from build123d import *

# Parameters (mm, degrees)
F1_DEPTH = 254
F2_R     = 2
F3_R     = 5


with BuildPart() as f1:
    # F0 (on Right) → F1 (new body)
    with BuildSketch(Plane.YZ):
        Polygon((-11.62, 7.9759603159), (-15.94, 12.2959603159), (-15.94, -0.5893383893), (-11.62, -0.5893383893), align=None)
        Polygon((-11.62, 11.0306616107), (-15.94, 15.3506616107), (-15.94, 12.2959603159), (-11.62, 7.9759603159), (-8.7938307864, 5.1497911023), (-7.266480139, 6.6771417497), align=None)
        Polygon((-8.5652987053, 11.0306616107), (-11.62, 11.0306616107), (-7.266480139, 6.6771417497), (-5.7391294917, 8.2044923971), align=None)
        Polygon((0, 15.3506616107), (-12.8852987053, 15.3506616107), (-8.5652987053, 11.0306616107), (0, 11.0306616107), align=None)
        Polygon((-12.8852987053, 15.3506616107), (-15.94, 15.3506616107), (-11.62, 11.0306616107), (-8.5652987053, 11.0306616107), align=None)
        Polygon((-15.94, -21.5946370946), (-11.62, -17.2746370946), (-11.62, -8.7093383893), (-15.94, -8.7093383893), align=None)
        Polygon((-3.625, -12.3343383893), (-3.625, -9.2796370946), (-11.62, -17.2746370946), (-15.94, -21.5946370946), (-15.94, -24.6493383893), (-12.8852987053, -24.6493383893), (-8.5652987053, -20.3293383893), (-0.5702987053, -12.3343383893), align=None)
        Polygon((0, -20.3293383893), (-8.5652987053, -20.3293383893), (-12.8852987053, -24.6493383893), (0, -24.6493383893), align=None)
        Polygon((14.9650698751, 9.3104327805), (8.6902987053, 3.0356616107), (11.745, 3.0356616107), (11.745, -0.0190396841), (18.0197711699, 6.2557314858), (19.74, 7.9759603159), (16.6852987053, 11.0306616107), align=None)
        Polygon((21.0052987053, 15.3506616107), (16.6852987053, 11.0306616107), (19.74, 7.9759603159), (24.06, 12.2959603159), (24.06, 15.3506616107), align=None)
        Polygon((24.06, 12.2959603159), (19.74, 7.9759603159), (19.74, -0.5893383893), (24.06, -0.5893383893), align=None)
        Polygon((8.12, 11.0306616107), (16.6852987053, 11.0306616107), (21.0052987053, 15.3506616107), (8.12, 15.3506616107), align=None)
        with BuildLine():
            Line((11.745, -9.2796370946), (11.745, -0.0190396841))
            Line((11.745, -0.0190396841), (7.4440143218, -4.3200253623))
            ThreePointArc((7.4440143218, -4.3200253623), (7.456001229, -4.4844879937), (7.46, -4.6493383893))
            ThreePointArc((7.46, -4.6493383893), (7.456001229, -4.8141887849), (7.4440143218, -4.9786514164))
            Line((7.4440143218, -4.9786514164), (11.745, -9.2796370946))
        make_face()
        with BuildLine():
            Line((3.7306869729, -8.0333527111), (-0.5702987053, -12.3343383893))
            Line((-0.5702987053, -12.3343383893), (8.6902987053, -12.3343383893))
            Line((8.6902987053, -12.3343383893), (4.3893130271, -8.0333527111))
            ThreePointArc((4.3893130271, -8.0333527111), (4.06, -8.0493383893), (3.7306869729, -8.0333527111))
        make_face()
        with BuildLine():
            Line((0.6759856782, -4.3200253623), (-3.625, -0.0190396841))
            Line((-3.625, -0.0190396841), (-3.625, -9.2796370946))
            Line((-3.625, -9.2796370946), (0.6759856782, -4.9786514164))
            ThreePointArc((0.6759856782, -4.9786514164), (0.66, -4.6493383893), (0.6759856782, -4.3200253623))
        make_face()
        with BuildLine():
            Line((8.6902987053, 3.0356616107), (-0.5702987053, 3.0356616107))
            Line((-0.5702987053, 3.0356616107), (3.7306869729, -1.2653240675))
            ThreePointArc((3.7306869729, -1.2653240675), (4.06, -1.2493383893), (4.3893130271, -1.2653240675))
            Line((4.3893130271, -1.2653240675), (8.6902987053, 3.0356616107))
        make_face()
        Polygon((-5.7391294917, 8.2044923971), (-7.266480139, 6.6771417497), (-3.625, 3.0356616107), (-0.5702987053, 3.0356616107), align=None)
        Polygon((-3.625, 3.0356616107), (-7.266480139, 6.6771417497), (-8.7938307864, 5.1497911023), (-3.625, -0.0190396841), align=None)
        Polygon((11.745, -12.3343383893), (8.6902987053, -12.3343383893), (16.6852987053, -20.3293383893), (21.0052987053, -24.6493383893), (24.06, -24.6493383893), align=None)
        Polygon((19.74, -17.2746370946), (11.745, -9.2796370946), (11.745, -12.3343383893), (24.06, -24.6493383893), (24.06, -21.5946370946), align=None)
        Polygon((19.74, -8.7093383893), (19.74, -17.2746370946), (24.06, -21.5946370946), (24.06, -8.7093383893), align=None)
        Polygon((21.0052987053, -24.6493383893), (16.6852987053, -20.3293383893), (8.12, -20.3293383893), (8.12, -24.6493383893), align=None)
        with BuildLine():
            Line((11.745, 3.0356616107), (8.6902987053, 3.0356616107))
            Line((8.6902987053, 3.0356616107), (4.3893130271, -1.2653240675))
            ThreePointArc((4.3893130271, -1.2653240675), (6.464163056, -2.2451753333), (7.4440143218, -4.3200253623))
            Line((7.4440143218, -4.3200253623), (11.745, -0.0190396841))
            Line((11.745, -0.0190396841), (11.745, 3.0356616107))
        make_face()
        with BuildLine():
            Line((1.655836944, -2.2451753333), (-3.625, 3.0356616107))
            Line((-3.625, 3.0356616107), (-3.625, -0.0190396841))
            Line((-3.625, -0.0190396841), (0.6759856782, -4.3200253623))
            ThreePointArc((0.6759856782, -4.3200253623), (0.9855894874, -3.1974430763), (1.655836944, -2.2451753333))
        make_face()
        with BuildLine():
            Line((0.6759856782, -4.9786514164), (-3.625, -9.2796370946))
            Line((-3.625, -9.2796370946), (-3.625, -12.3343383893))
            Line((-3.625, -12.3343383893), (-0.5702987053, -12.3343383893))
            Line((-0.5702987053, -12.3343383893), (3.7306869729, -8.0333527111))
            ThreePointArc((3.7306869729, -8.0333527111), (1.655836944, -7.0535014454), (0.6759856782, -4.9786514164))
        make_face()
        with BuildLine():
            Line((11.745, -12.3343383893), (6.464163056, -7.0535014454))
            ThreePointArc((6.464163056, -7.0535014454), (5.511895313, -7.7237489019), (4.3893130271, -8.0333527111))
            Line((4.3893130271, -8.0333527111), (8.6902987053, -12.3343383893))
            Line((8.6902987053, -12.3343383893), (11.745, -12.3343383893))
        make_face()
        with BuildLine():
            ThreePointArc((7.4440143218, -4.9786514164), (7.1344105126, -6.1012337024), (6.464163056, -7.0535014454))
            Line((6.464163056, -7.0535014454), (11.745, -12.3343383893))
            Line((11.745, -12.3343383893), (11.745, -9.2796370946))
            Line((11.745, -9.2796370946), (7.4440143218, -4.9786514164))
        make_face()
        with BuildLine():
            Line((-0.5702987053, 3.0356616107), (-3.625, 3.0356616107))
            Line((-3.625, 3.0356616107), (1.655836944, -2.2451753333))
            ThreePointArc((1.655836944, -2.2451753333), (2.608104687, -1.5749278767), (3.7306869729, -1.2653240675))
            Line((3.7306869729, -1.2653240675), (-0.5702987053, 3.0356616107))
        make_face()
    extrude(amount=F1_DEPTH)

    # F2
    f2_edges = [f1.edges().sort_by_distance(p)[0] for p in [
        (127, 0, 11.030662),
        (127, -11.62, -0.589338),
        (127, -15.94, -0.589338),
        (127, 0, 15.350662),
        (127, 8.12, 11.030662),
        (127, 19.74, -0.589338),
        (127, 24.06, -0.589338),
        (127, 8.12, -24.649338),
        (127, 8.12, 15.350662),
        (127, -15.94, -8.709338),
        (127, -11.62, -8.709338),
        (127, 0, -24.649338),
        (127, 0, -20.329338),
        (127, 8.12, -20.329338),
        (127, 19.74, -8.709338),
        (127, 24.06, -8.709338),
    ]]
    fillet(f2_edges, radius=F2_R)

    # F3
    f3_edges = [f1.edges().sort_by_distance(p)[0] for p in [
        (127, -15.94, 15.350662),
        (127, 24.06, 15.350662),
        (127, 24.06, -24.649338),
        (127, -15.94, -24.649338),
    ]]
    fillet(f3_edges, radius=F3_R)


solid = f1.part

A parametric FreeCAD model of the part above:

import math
import FreeCAD as App
import Part
import Sketcher

V = App.Vector
Q = App.Units.Quantity


def edges_at(feature, points):
    """Names of the edges that pass closest to the given points."""
    edges = feature.Shape.Edges
    near = lambda p: min(range(len(edges)), key=lambda i: edges[i].distToShape(Part.Vertex(*p))[0])
    return sorted({f"Edge{near(p) + 1}" for p in points})

doc = App.newDocument("Part")
body = doc.addObject("PartDesign::Body", "Body")

sketch1 = body.newObject("Sketcher::SketchObject", "Sketch")
sketch1.AttachmentSupport = (doc.getObject("YZ_Plane"), [""])
sketch1.MapMode = "FlatFace"
sketch1.addGeometry(Part.LineSegment(V(8.69, 3.04, 0), V(-0.57, 3.04, 0)), False)
sketch1.addGeometry(Part.LineSegment(V(-0.57, 3.04, 0), V(-8.57, 11.03, 0)), False)
sketch1.addGeometry(Part.LineSegment(V(-8.57, 11.03, 0), V(0, 11.03, 0)), False)
sketch1.addGeometry(Part.LineSegment(V(0, 11.03, 0), V(0, 15.35, 0)), False)
sketch1.addGeometry(Part.LineSegment(V(0, 15.35, 0), V(-15.94, 15.35, 0)), False)
sketch1.addGeometry(Part.LineSegment(V(-15.94, 15.35, 0), V(-15.94, -0.59, 0)), False)
sketch1.addGeometry(Part.LineSegment(V(-15.94, -0.59, 0), V(-11.62, -0.59, 0)), False)
sketch1.addGeometry(Part.LineSegment(V(-11.62, -0.59, 0), V(-11.62, 7.98, 0)), False)
sketch1.addGeometry(Part.LineSegment(V(-11.62, 7.98, 0), V(-3.62, -0.02, 0)), False)
sketch1.addGeometry(Part.LineSegment(V(-3.62, -0.02, 0), V(-3.62, -9.28, 0)), False)
sketch1.addGeometry(Part.LineSegment(V(-3.62, -9.28, 0), V(-11.62, -17.27, 0)), False)
sketch1.addGeometry(Part.LineSegment(V(-11.62, -17.27, 0), V(-11.62, -8.71, 0)), False)
sketch1.addGeometry(Part.LineSegment(V(-11.62, -8.71, 0), V(-15.94, -8.71, 0)), False)
sketch1.addGeometry(Part.LineSegment(V(-15.94, -8.71, 0), V(-15.94, -24.65, 0)), False)
sketch1.addGeometry(Part.LineSegment(V(-15.94, -24.65, 0), V(0, -24.65, 0)), False)
sketch1.addGeometry(Part.LineSegment(V(0, -24.65, 0), V(0, -20.33, 0)), False)
sketch1.addGeometry(Part.LineSegment(V(0, -20.33, 0), V(-8.57, -20.33, 0)), False)
sketch1.addGeometry(Part.LineSegment(V(-8.57, -20.33, 0), V(-0.57, -12.33, 0)), False)
sketch1.addGeometry(Part.LineSegment(V(-0.57, -12.33, 0), V(8.69, -12.33, 0)), False)
sketch1.addGeometry(Part.LineSegment(V(8.69, -12.33, 0), V(16.69, -20.33, 0)), False)
sketch1.addGeometry(Part.LineSegment(V(16.69, -20.33, 0), V(8.12, -20.33, 0)), False)
sketch1.addGeometry(Part.LineSegment(V(8.12, -20.33, 0), V(8.12, -24.65, 0)), False)
sketch1.addGeometry(Part.LineSegment(V(8.12, -24.65, 0), V(24.06, -24.65, 0)), False)
sketch1.addGeometry(Part.LineSegment(V(24.06, -24.65, 0), V(24.06, -8.71, 0)), False)
sketch1.addGeometry(Part.LineSegment(V(24.06, -8.71, 0), V(19.74, -8.71, 0)), False)
sketch1.addGeometry(Part.LineSegment(V(19.74, -8.71, 0), V(19.74, -17.27, 0)), False)
sketch1.addGeometry(Part.LineSegment(V(19.74, -17.27, 0), V(11.74, -9.28, 0)), False)
sketch1.addGeometry(Part.LineSegment(V(11.74, -9.28, 0), V(11.74, -0.02, 0)), False)
sketch1.addGeometry(Part.LineSegment(V(11.74, -0.02, 0), V(19.74, 7.98, 0)), False)
sketch1.addGeometry(Part.LineSegment(V(19.74, 7.98, 0), V(19.74, -0.59, 0)), False)
sketch1.addGeometry(Part.LineSegment(V(19.74, -0.59, 0), V(24.06, -0.59, 0)), False)
sketch1.addGeometry(Part.LineSegment(V(24.06, -0.59, 0), V(24.06, 15.35, 0)), False)
sketch1.addGeometry(Part.LineSegment(V(24.06, 15.35, 0), V(8.12, 15.35, 0)), False)
sketch1.addGeometry(Part.LineSegment(V(8.12, 15.35, 0), V(8.12, 11.03, 0)), False)
sketch1.addGeometry(Part.LineSegment(V(8.12, 11.03, 0), V(16.69, 11.03, 0)), False)
sketch1.addGeometry(Part.LineSegment(V(16.69, 11.03, 0), V(8.69, 3.04, 0)), False)
sketch1.addGeometry(Part.ArcOfCircle(Part.Circle(V(4.06, -4.65, 0), V(0, 0, 1), 3.4), math.radians(135), math.radians(174)), False)
sketch1.addGeometry(Part.ArcOfCircle(Part.Circle(V(4.06, -4.65, 0), V(0, 0, 1), 3.4), math.radians(96), math.radians(135)), False)
sketch1.addGeometry(Part.ArcOfCircle(Part.Circle(V(4.06, -4.65, 0), V(0, 0, 1), 3.4), math.radians(84.44), math.radians(95.56)), False)
sketch1.addGeometry(Part.ArcOfCircle(Part.Circle(V(4.06, -4.65, 0), V(0, 0, 1), 3.4), math.radians(6), math.radians(84)), False)
sketch1.addGeometry(Part.ArcOfCircle(Part.Circle(V(4.06, -4.65, 0), V(0, 0, 1), 3.4), math.radians(0), math.radians(5.56)), False)
sketch1.addGeometry(Part.ArcOfCircle(Part.Circle(V(4.06, -4.65, 0), V(0, 0, 1), 3.4), math.radians(-5.56), math.radians(0)), False)
sketch1.addGeometry(Part.ArcOfCircle(Part.Circle(V(4.06, -4.65, 0), V(0, 0, 1), 3.4), math.radians(-45), math.radians(-6)), False)
sketch1.addGeometry(Part.ArcOfCircle(Part.Circle(V(4.06, -4.65, 0), V(0, 0, 1), 3.4), math.radians(-84), math.radians(-45)), False)
sketch1.addGeometry(Part.ArcOfCircle(Part.Circle(V(4.06, -4.65, 0), V(0, 0, 1), 3.4), math.radians(-95.56), math.radians(-84.44)), False)
sketch1.addGeometry(Part.ArcOfCircle(Part.Circle(V(4.06, -4.65, 0), V(0, 0, 1), 3.4), math.radians(-174), math.radians(-96)), False)
sketch1.addGeometry(Part.ArcOfCircle(Part.Circle(V(4.06, -4.65, 0), V(0, 0, 1), 3.4), math.radians(174.44), math.radians(185.56)), False)
sketch1.addConstraint(Sketcher.Constraint("Coincident", 0, 2, 1, 1))
sketch1.addConstraint(Sketcher.Constraint("Coincident", 1, 2, 2, 1))
sketch1.addConstraint(Sketcher.Constraint("Coincident", 2, 2, 3, 1))
sketch1.addConstraint(Sketcher.Constraint("Coincident", 3, 2, 4, 1))
sketch1.addConstraint(Sketcher.Constraint("Coincident", 4, 2, 5, 1))
sketch1.addConstraint(Sketcher.Constraint("Coincident", 5, 2, 6, 1))
sketch1.addConstraint(Sketcher.Constraint("Coincident", 6, 2, 7, 1))
sketch1.addConstraint(Sketcher.Constraint("Coincident", 7, 2, 8, 1))
sketch1.addConstraint(Sketcher.Constraint("Coincident", 8, 2, 9, 1))
sketch1.addConstraint(Sketcher.Constraint("Coincident", 9, 2, 10, 1))
sketch1.addConstraint(Sketcher.Constraint("Coincident", 10, 2, 11, 1))
sketch1.addConstraint(Sketcher.Constraint("Coincident", 11, 2, 12, 1))
sketch1.addConstraint(Sketcher.Constraint("Coincident", 12, 2, 13, 1))
sketch1.addConstraint(Sketcher.Constraint("Coincident", 13, 2, 14, 1))
sketch1.addConstraint(Sketcher.Constraint("Coincident", 14, 2, 15, 1))
sketch1.addConstraint(Sketcher.Constraint("Coincident", 15, 2, 16, 1))
sketch1.addConstraint(Sketcher.Constraint("Coincident", 16, 2, 17, 1))
sketch1.addConstraint(Sketcher.Constraint("Coincident", 17, 2, 18, 1))
sketch1.addConstraint(Sketcher.Constraint("Coincident", 18, 2, 19, 1))
sketch1.addConstraint(Sketcher.Constraint("Coincident", 19, 2, 20, 1))
sketch1.addConstraint(Sketcher.Constraint("Coincident", 20, 2, 21, 1))
sketch1.addConstraint(Sketcher.Constraint("Coincident", 21, 2, 22, 1))
sketch1.addConstraint(Sketcher.Constraint("Coincident", 22, 2, 23, 1))
sketch1.addConstraint(Sketcher.Constraint("Coincident", 23, 2, 24, 1))
sketch1.addConstraint(Sketcher.Constraint("Coincident", 24, 2, 25, 1))
sketch1.addConstraint(Sketcher.Constraint("Coincident", 25, 2, 26, 1))
sketch1.addConstraint(Sketcher.Constraint("Coincident", 26, 2, 27, 1))
sketch1.addConstraint(Sketcher.Constraint("Coincident", 27, 2, 28, 1))
sketch1.addConstraint(Sketcher.Constraint("Coincident", 28, 2, 29, 1))
sketch1.addConstraint(Sketcher.Constraint("Coincident", 29, 2, 30, 1))
sketch1.addConstraint(Sketcher.Constraint("Coincident", 30, 2, 31, 1))
sketch1.addConstraint(Sketcher.Constraint("Coincident", 31, 2, 32, 1))
sketch1.addConstraint(Sketcher.Constraint("Coincident", 32, 2, 33, 1))
sketch1.addConstraint(Sketcher.Constraint("Coincident", 33, 2, 34, 1))
sketch1.addConstraint(Sketcher.Constraint("Coincident", 34, 2, 35, 1))
sketch1.addConstraint(Sketcher.Constraint("Coincident", 35, 2, 0, 1))
sketch1.addConstraint(Sketcher.Constraint("Tangent", 36, 1, 37, 2))
sketch1.addConstraint(Sketcher.Constraint("Tangent", 37, 1, 38, 2))
sketch1.addConstraint(Sketcher.Constraint("Tangent", 38, 1, 39, 2))
sketch1.addConstraint(Sketcher.Constraint("Tangent", 39, 1, 40, 2))
sketch1.addConstraint(Sketcher.Constraint("Tangent", 40, 1, 41, 2))
sketch1.addConstraint(Sketcher.Constraint("Tangent", 41, 1, 42, 2))
sketch1.addConstraint(Sketcher.Constraint("Tangent", 42, 1, 43, 2))
sketch1.addConstraint(Sketcher.Constraint("Tangent", 43, 1, 44, 2))
sketch1.addConstraint(Sketcher.Constraint("Tangent", 44, 1, 45, 2))
sketch1.addConstraint(Sketcher.Constraint("Tangent", 45, 1, 46, 2))
sketch1.addConstraint(Sketcher.Constraint("Tangent", 46, 1, 36, 2))
sketch1.addConstraint(Sketcher.Constraint("Horizontal", 0))
sketch1.addConstraint(Sketcher.Constraint("Horizontal", 2))
sketch1.addConstraint(Sketcher.Constraint("Vertical", 3))
sketch1.addConstraint(Sketcher.Constraint("Horizontal", 4))
sketch1.addConstraint(Sketcher.Constraint("Vertical", 5))
sketch1.addConstraint(Sketcher.Constraint("Horizontal", 6))
sketch1.addConstraint(Sketcher.Constraint("Vertical", 7))
sketch1.addConstraint(Sketcher.Constraint("Vertical", 9))
sketch1.addConstraint(Sketcher.Constraint("Vertical", 11))
sketch1.addConstraint(Sketcher.Constraint("Horizontal", 12))
sketch1.addConstraint(Sketcher.Constraint("Vertical", 13))
sketch1.addConstraint(Sketcher.Constraint("Horizontal", 14))
sketch1.addConstraint(Sketcher.Constraint("Vertical", 15))
sketch1.addConstraint(Sketcher.Constraint("Horizontal", 16))
sketch1.addConstraint(Sketcher.Constraint("Horizontal", 18))
sketch1.addConstraint(Sketcher.Constraint("Horizontal", 20))
sketch1.addConstraint(Sketcher.Constraint("Vertical", 21))
sketch1.addConstraint(Sketcher.Constraint("Horizontal", 22))
sketch1.addConstraint(Sketcher.Constraint("Vertical", 23))
sketch1.addConstraint(Sketcher.Constraint("Horizontal", 24))
sketch1.addConstraint(Sketcher.Constraint("Vertical", 25))
sketch1.addConstraint(Sketcher.Constraint("Vertical", 27))
sketch1.addConstraint(Sketcher.Constraint("Vertical", 29))
sketch1.addConstraint(Sketcher.Constraint("Horizontal", 30))
sketch1.addConstraint(Sketcher.Constraint("Vertical", 31))
sketch1.addConstraint(Sketcher.Constraint("Horizontal", 32))
sketch1.addConstraint(Sketcher.Constraint("Vertical", 33))
sketch1.addConstraint(Sketcher.Constraint("Horizontal", 34))
sketch1.addConstraint(Sketcher.Constraint("Coincident", 38, 3, 36, 3))
sketch1.addConstraint(Sketcher.Constraint("Coincident", 40, 3, 36, 3))
sketch1.addConstraint(Sketcher.Constraint("Coincident", 42, 3, 36, 3))
sketch1.addConstraint(Sketcher.Constraint("Coincident", 44, 3, 36, 3))
sketch1.addConstraint(Sketcher.Constraint("PointOnObject", 2, 2, -2))
sketch1.addConstraint(Sketcher.Constraint("PointOnObject", 14, 2, -2))
sketch1.addConstraint(Sketcher.Constraint("Parallel", 1, 8))
sketch1.addConstraint(Sketcher.Constraint("Perpendicular", 8, 10))
sketch1.addConstraint(Sketcher.Constraint("Parallel", 10, 17))
sketch1.addConstraint(Sketcher.Constraint("Perpendicular", 17, 19))
sketch1.addConstraint(Sketcher.Constraint("Parallel", 19, 26))
sketch1.addConstraint(Sketcher.Constraint("Perpendicular", 26, 28))
sketch1.addConstraint(Sketcher.Constraint("Parallel", 28, 35))
sketch1.addConstraint(Sketcher.Constraint("Horizontal", 16, 2, 19, 2))
sketch1.addConstraint(Sketcher.Constraint("Horizontal", 14, 2, 21, 2))
sketch1.addConstraint(Sketcher.Constraint("Horizontal", 12, 2, 23, 2))
sketch1.addConstraint(Sketcher.Constraint("Horizontal", 10, 2, 25, 2))
sketch1.addConstraint(Sketcher.Constraint("Horizontal", 9, 2, 26, 2))
sketch1.addConstraint(Sketcher.Constraint("Horizontal", 8, 2, 27, 2))
sketch1.addConstraint(Sketcher.Constraint("Horizontal", 7, 2, 28, 2))
sketch1.addConstraint(Sketcher.Constraint("Horizontal", 6, 2, 29, 2))
sketch1.addConstraint(Sketcher.Constraint("Horizontal", 4, 2, 31, 2))
sketch1.addConstraint(Sketcher.Constraint("Horizontal", 2, 2, 33, 2))
sketch1.addConstraint(Sketcher.Constraint("Horizontal", 37, 1, 38, 1))
sketch1.addConstraint(Sketcher.Constraint("Horizontal", 46, 3, 40, 1))
sketch1.addConstraint(Sketcher.Constraint("Horizontal", 43, 1, 44, 1))
sketch1.addConstraint(Sketcher.Constraint("Horizontal", 41, 1, 45, 1))
sketch1.addConstraint(Sketcher.Constraint("Horizontal", 39, 1, 46, 1))
sketch1.addConstraint(Sketcher.Constraint("Vertical", 7, 2, 10, 2))
sketch1.addConstraint(Sketcher.Constraint("Vertical", 5, 2, 12, 2))
sketch1.addConstraint(Sketcher.Constraint("Vertical", 1, 2, 16, 2))
sketch1.addConstraint(Sketcher.Constraint("Vertical", 0, 2, 17, 2))
sketch1.addConstraint(Sketcher.Constraint("Vertical", 25, 2, 28, 2))
sketch1.addConstraint(Sketcher.Constraint("Vertical", 23, 2, 30, 2))
sketch1.addConstraint(Sketcher.Constraint("Vertical", 21, 2, 32, 2))
sketch1.addConstraint(Sketcher.Constraint("Vertical", 19, 2, 34, 2))
sketch1.addConstraint(Sketcher.Constraint("Vertical", 39, 1, 41, 1))
sketch1.addConstraint(Sketcher.Constraint("Vertical", 38, 1, 43, 1))
sketch1.addConstraint(Sketcher.Constraint("Equal", 16, 20))
sketch1.addConstraint(Sketcher.Constraint("Equal", 14, 22))
sketch1.addConstraint(Sketcher.Constraint("Equal", 12, 24))
sketch1.addConstraint(Sketcher.Constraint("Equal", 30, 3))
sketch1.addConstraint(Sketcher.Constraint("Equal", 32, 5))
sketch1.addConstraint(Sketcher.Constraint("Equal", 34, 7))
sketch1.addConstraint(Sketcher.Constraint("Equal", 18, 9))
sketch1.addConstraint(Sketcher.Constraint("Equal", 7, 11))
sketch1.addConstraint(Sketcher.Constraint("Equal", 5, 13))
sketch1.addConstraint(Sketcher.Constraint("Equal", 3, 15))
sketch1.addConstraint(Sketcher.Constraint("Equal", 1, 8))
sketch1.addConstraint(Sketcher.Constraint("Radius", 36, Q("3.4 mm")))
sketch1.addConstraint(Sketcher.Constraint("DistanceY", 38, 3, 3, 2, Q("20 mm")))
sketch1.addConstraint(Sketcher.Constraint("DistanceX", 4, 2, 46, 3, Q("20 mm")))
sketch1.addConstraint(Sketcher.Constraint("DistanceY", 14, 2, 44, 3, Q("20 mm")))
sketch1.addConstraint(Sketcher.Constraint("DistanceX", 4, 2, 4, 1, Q("15.94 mm")))
sketch1.addConstraint(Sketcher.Constraint("DistanceX", 6, 1, 6, 2, Q("4.32 mm")))
sketch1.addConstraint(Sketcher.Constraint("DistanceX", 2, 1, 2, 2, Q("8.565299 mm")))
sketch1.addConstraint(Sketcher.Constraint("DistanceX", 8, 2, -1, 1, Q("3.625 mm")))
sketch1.addConstraint(Sketcher.Constraint("DistanceY", 42, 1, -1, 1, Q("7.053501 mm")))
sketch1.addConstraint(Sketcher.Constraint("DistanceY", 36, 3, -1, 1, Q("4.649338 mm")))
sketch1.addConstraint(Sketcher.Constraint("DistanceY", 41, 1, -1, 1, Q("4.978651 mm")))
sketch1.addConstraint(Sketcher.Constraint("DistanceX", 36, 1, 37, 1, Q("2.07485 mm")))
sketch1.addConstraint(Sketcher.Constraint("DistanceY", 36, 1, 37, 1, Q("0.979851 mm")))
pad1 = body.newObject("PartDesign::Pad", "Pad")
pad1.Profile = sketch1
pad1.Length = 254
doc.recompute()

fillet = body.newObject("PartDesign::Fillet", "Fillet")
fillet.Base = (pad1, edges_at(pad1, [
    (127, 0, 11.031),
    (127, -11.62, -0.589),
    (127, -15.94, -0.589),
    (127, 0, 15.351),
    (127, 8.12, 11.031),
    (127, 19.74, -0.589),
    (127, 24.06, -0.589),
    (127, 8.12, -24.649),
    (127, 8.12, 15.351),
    (127, -15.94, -8.709),
    (127, -11.62, -8.709),
    (127, 0, -24.649),
    (127, 0, -20.329),
    (127, 8.12, -20.329),
    (127, 19.74, -8.709),
    (127, 24.06, -8.709),
]))
fillet.Radius = 2
doc.recompute()

fillet2 = body.newObject("PartDesign::Fillet", "Fillet001")
fillet2.Base = (fillet, edges_at(fillet, [
    (127, -15.94, 15.351),
    (127, 24.06, 15.351),
    (127, 24.06, -24.649),
    (127, -15.94, -24.649),
]))
fillet2.Radius = 5

doc.recompute()
